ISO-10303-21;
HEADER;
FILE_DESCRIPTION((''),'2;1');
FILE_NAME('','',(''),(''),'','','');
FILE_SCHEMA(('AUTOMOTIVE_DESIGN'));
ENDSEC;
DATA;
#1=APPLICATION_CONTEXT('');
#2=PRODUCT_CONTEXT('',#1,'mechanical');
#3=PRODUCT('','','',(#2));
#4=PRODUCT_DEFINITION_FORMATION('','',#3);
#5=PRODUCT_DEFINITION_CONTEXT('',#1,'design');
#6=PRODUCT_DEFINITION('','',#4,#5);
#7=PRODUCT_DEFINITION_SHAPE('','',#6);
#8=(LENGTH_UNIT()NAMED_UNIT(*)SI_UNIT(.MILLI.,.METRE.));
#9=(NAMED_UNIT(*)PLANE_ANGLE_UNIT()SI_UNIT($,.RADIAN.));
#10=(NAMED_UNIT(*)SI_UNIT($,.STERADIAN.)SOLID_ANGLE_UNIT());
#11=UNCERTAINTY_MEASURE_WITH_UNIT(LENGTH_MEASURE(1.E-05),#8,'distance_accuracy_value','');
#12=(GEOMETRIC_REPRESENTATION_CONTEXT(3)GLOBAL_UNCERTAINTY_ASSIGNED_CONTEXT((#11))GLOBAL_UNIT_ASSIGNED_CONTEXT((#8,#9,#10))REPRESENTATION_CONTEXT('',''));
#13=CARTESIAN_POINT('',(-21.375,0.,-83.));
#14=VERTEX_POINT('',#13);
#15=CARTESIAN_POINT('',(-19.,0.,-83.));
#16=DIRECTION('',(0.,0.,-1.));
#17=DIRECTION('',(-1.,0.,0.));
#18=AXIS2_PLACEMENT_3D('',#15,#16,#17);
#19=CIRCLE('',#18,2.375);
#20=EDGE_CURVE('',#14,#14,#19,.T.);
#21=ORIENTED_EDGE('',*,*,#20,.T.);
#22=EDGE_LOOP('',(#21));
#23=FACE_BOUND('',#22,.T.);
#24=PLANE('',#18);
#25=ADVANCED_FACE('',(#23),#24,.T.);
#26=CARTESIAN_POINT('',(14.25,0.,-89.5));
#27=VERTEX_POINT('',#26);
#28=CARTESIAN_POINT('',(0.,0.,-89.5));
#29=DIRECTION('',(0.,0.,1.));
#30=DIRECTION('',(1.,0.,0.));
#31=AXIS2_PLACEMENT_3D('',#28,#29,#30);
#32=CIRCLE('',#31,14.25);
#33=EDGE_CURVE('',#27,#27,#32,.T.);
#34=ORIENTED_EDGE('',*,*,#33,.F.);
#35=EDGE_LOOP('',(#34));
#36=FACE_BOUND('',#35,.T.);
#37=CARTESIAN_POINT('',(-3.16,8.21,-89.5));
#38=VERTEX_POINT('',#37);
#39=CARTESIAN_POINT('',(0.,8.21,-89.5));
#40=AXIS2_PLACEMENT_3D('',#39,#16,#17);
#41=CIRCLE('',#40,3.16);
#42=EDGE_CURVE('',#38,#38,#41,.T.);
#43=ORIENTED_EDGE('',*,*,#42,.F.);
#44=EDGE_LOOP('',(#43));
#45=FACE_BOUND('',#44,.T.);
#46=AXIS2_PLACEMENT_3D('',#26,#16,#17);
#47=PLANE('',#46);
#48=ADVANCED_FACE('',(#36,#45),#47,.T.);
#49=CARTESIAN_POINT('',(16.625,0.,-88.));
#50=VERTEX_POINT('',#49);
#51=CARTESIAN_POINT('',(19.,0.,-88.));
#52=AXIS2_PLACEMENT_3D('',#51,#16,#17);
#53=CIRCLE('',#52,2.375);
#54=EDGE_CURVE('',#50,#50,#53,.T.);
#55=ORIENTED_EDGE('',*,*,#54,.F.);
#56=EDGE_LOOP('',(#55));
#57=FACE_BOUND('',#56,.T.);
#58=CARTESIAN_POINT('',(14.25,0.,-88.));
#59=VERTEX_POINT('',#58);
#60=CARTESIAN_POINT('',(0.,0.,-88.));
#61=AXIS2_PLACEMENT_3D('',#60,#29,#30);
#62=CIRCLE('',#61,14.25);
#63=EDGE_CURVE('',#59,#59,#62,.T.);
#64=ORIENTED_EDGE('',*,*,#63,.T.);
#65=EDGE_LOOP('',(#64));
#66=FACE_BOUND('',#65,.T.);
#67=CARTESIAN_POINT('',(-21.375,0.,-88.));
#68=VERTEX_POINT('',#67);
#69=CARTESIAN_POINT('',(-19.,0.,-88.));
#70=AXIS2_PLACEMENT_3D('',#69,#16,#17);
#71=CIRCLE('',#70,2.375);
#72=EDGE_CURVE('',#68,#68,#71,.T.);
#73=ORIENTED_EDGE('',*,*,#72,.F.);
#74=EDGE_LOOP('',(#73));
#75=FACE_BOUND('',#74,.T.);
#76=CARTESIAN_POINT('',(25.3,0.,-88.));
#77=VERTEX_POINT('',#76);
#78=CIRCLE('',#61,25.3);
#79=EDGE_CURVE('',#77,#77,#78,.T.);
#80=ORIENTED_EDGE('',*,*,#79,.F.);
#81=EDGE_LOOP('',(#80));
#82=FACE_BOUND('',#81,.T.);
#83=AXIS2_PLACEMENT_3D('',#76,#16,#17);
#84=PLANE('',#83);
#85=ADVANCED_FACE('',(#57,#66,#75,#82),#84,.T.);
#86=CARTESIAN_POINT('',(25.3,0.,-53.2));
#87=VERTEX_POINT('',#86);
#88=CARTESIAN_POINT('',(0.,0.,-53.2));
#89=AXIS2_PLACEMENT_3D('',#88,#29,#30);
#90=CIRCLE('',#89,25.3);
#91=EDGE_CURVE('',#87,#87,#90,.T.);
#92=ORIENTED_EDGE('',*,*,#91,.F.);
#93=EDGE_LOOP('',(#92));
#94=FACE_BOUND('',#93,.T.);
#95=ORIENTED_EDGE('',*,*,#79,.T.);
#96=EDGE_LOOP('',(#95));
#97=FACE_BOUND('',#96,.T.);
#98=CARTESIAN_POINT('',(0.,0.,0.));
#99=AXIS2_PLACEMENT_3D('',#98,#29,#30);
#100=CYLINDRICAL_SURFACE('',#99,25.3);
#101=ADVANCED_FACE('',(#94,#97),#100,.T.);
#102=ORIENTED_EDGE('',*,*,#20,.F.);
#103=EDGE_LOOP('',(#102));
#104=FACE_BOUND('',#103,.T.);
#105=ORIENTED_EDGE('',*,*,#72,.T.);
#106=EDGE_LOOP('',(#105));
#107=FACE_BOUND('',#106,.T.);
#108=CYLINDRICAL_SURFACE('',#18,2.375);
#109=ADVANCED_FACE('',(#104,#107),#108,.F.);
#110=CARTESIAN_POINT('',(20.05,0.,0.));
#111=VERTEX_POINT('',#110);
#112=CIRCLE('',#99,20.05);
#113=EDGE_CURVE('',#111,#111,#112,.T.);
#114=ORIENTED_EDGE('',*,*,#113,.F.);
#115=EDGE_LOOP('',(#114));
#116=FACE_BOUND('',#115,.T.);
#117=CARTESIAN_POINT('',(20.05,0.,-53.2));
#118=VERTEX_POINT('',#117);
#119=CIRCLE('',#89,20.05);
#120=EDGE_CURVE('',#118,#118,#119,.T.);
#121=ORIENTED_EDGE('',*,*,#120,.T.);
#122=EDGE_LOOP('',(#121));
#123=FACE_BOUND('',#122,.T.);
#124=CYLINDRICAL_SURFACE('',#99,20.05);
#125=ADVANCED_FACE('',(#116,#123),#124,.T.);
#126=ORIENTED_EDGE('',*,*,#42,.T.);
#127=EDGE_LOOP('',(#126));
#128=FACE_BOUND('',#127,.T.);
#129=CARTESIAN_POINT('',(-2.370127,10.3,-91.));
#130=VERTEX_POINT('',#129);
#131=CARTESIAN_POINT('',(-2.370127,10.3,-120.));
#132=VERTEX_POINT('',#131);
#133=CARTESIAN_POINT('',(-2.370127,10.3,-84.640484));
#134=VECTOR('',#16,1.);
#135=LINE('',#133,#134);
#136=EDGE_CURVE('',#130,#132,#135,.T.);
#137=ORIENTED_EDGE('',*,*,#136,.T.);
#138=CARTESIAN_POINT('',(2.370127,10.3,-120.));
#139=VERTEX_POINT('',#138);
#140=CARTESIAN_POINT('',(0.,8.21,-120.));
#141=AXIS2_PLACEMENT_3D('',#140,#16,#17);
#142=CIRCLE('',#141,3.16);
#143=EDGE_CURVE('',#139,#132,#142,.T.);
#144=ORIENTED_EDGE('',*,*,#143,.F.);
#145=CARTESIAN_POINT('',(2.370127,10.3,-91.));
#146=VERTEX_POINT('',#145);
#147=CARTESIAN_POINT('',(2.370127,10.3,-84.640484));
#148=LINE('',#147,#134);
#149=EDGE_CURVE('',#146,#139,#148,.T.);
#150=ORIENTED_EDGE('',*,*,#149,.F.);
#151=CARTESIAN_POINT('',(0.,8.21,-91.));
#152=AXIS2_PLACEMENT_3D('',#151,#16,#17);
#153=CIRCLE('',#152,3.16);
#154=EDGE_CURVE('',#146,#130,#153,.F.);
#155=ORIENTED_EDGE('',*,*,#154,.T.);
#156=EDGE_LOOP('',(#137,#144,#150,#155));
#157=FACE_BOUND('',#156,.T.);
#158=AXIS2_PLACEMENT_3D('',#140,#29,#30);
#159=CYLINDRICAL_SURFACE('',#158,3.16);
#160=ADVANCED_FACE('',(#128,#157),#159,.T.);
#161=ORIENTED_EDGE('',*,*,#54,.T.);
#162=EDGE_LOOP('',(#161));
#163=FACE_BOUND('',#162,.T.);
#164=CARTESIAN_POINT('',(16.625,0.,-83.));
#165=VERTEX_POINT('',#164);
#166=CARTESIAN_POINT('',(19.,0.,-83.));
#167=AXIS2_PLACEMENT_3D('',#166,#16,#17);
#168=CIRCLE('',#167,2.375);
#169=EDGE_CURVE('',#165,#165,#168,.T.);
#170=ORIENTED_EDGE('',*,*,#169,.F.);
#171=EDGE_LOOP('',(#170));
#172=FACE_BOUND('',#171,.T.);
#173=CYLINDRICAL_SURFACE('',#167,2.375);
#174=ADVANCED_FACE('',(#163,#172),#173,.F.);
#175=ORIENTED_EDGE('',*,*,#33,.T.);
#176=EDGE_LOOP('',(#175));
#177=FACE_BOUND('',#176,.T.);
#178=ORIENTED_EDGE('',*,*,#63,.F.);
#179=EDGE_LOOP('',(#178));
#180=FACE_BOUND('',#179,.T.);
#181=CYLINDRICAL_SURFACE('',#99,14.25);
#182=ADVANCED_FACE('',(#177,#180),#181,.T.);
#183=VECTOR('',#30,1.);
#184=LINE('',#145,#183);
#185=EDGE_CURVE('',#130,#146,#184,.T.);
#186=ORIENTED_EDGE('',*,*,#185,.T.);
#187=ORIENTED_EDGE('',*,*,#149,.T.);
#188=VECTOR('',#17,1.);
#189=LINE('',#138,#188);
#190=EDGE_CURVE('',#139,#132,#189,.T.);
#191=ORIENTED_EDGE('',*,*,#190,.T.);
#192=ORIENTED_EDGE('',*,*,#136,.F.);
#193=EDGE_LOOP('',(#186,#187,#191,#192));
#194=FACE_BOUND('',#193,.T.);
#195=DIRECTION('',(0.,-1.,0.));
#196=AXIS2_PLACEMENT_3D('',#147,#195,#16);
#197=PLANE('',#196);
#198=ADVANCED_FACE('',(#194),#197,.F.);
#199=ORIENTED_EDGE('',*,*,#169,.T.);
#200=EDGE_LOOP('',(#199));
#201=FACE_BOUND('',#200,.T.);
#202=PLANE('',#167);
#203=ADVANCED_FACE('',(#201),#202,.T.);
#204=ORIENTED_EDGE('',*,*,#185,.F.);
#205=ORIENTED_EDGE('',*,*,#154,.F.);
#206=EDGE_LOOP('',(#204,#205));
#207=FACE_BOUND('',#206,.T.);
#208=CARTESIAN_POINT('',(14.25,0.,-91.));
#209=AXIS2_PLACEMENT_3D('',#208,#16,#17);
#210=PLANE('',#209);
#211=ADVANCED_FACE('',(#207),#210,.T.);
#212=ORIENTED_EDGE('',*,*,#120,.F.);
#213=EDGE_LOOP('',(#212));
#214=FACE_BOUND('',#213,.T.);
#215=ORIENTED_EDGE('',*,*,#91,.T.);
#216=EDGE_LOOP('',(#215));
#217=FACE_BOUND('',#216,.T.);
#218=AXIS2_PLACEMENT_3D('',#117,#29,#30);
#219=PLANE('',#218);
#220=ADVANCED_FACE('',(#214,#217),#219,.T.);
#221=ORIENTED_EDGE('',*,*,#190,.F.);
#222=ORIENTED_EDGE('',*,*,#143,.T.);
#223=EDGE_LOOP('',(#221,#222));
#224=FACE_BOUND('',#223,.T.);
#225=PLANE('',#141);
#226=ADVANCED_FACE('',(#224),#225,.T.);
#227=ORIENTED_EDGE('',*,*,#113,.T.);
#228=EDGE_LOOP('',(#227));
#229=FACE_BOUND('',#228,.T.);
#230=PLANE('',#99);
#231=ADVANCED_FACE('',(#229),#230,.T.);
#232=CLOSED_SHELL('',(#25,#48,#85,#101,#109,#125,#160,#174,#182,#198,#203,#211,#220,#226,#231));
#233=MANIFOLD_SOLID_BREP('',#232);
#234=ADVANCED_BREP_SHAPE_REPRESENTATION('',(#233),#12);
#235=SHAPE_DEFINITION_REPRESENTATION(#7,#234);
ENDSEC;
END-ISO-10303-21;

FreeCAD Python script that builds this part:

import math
import FreeCAD as App
import Part
import Sketcher

V = App.Vector
Q = App.Units.Quantity

doc = App.newDocument("Part")
params = doc.addObject("Spreadsheet::Sheet", "Params")
for row, (alias, value) in enumerate([
    ("sketch1_height", "53.2 mm"),
    ("sketch1_height2", "34.8 mm"),
    ("sketch1_height3", "1.5 mm"),
    ("sketch1_width", "20.05 mm"),
    ("sketch1_width2", "5.25 mm"),
    ("revolution_angle", "360 deg"),
    ("sketch2_diameter", "6.32 mm"),
    ("pad1_length", "30.5 mm"),
    ("sketch3_radius", "3.16 mm"),
    ("pocket1_length", "29 mm"),
    ("sketch4_diameter", "4.75 mm"),
    ("pocket2_length", "5 mm"),
], start=1):
    params.set(f"A{row}", alias)
    params.set(f"B{row}", "=" + value)
    params.setAlias(f"B{row}", alias)

body = doc.addObject("PartDesign::Body", "Body")

# Sketch on XZ plane
sketch1 = body.newObject("Sketcher::SketchObject", "Sketch")
sketch1.AttachmentSupport = (doc.getObject("XZ_Plane"), [""])
sketch1.MapMode = "FlatFace"
sketch1.addGeometry(Part.LineSegment(V(0, 0, 0), V(20.1, 0, 0)), False)
sketch1.addGeometry(Part.LineSegment(V(20.1, 0, 0), V(20.1, -53.2, 0)), False)
sketch1.addGeometry(Part.LineSegment(V(20.1, -53.2, 0), V(25.3, -53.2, 0)), False)
sketch1.addGeometry(Part.LineSegment(V(25.3, -53.2, 0), V(25.3, -88, 0)), False)
sketch1.addGeometry(Part.LineSegment(V(25.3, -88, 0), V(14.2, -88, 0)), False)
sketch1.addGeometry(Part.LineSegment(V(14.2, -88, 0), V(14.2, -89.5, 0)), False)
sketch1.addGeometry(Part.LineSegment(V(14.2, -89.5, 0), V(0, -89.5, 0)), False)
sketch1.addGeometry(Part.LineSegment(V(0, -89.5, 0), V(0, 0, 0)), False)
sketch1.addConstraint(Sketcher.Constraint("Coincident", 0, 2, 1, 1))
sketch1.addConstraint(Sketcher.Constraint("Coincident", 1, 2, 2, 1))
sketch1.addConstraint(Sketcher.Constraint("Coincident", 2, 2, 3, 1))
sketch1.addConstraint(Sketcher.Constraint("Coincident", 3, 2, 4, 1))
sketch1.addConstraint(Sketcher.Constraint("Coincident", 4, 2, 5, 1))
sketch1.addConstraint(Sketcher.Constraint("Coincident", 5, 2, 6, 1))
sketch1.addConstraint(Sketcher.Constraint("Coincident", 6, 2, 7, 1))
sketch1.addConstraint(Sketcher.Constraint("Coincident", 7, 2, 0, 1))
sketch1.addConstraint(Sketcher.Constraint("Horizontal", 0))
sketch1.addConstraint(Sketcher.Constraint("Vertical", 1))
sketch1.addConstraint(Sketcher.Constraint("Horizontal", 2))
sketch1.addConstraint(Sketcher.Constraint("Vertical", 3))
sketch1.addConstraint(Sketcher.Constraint("Horizontal", 4))
sketch1.addConstraint(Sketcher.Constraint("Vertical", 5))
sketch1.addConstraint(Sketcher.Constraint("Horizontal", 6))
sketch1.addConstraint(Sketcher.Constraint("Vertical", 7))
sketch1.addConstraint(Sketcher.Constraint("Coincident", 7, 2, -1, 1))
sketch1.addConstraint(Sketcher.Constraint("DistanceY", 1, 2, 1, 1, Q("53.2 mm")))
sketch1.addConstraint(Sketcher.Constraint("DistanceY", 3, 2, 3, 1, Q("34.8 mm")))
sketch1.addConstraint(Sketcher.Constraint("DistanceY", 5, 2, 5, 1, Q("1.5 mm")))
sketch1.addConstraint(Sketcher.Constraint("DistanceX", 0, 1, 0, 2, Q("20.05 mm")))
sketch1.addConstraint(Sketcher.Constraint("DistanceX", 2, 1, 2, 2, Q("5.25 mm")))
sketch1.addConstraint(Sketcher.Constraint("DistanceX", 4, 2, 4, 1, Q("11.05 mm")))
sketch1.setExpression("Constraints[17]", "Params.sketch1_height")
sketch1.setExpression("Constraints[18]", "Params.sketch1_height2")
sketch1.setExpression("Constraints[19]", "Params.sketch1_height3")
sketch1.setExpression("Constraints[20]", "Params.sketch1_width")
sketch1.setExpression("Constraints[21]", "Params.sketch1_width2")
revolution = body.newObject("PartDesign::Revolution", "Revolution")
revolution.Profile = sketch1
revolution.ReferenceAxis = (sketch1, ["V_Axis"])
revolution.setExpression("Angle", "Params.revolution_angle")

# Sketch on XY plane
sketch2 = body.newObject("Sketcher::SketchObject", "Sketch001")
sketch2.AttachmentSupport = (doc.getObject("XY_Plane"), [""])
sketch2.MapMode = "FlatFace"
sketch2.AttachmentOffset = App.Placement(V(0, 0, -89.5), App.Rotation())
sketch2.addGeometry(Part.Circle(V(0, 8.2, 0), V(0, 0, 1), 3.2), False)
sketch2.addConstraint(Sketcher.Constraint("PointOnObject", 0, 3, -2))
sketch2.addConstraint(Sketcher.Constraint("Diameter", 0, Q("6.32 mm")))
sketch2.addConstraint(Sketcher.Constraint("DistanceY", -1, 1, 0, 3, Q("8.21 mm")))
sketch2.setExpression("Constraints[1]", "Params.sketch2_diameter")
pad1 = body.newObject("PartDesign::Pad", "Pad")
pad1.Profile = sketch2
pad1.setExpression("Length", "Params.pad1_length")
pad1.Reversed = True

# Sketch on XY plane
sketch3 = body.newObject("Sketcher::SketchObject", "Sketch002")
sketch3.AttachmentSupport = (doc.getObject("XY_Plane"), [""])
sketch3.MapMode = "FlatFace"
sketch3.AttachmentOffset = App.Placement(V(0, 0, -91), App.Rotation())
sketch3.addGeometry(Part.LineSegment(V(2.4, 10.3, 0), V(-2.4, 10.3, 0)), False)
sketch3.addGeometry(Part.ArcOfCircle(Part.Circle(V(0, 8.2, 0), V(0, 0, 1), 3.2), math.radians(41), math.radians(139)), False)
sketch3.addConstraint(Sketcher.Constraint("Coincident", 0, 1, 1, 1))
sketch3.addConstraint(Sketcher.Constraint("Coincident", 1, 2, 0, 2))
sketch3.addConstraint(Sketcher.Constraint("Horizontal", 0))
sketch3.addConstraint(Sketcher.Constraint("PointOnObject", 1, 3, -2))
sketch3.addConstraint(Sketcher.Constraint("Radius", 1, Q("3.16 mm")))
sketch3.addConstraint(Sketcher.Constraint("DistanceY", -1, 1, 0, 1, Q("10.3 mm")))
sketch3.addConstraint(Sketcher.Constraint("DistanceY", -1, 1, 1, 3, Q("8.21 mm")))
sketch3.setExpression("Constraints[4]", "Params.sketch3_radius")
pocket1 = body.newObject("PartDesign::Pocket", "Pocket")
pocket1.Profile = sketch3
pocket1.setExpression("Length", "Params.pocket1_length")

# Sketch on XY plane
sketch4 = body.newObject("Sketcher::SketchObject", "Sketch003")
sketch4.AttachmentSupport = (doc.getObject("XY_Plane"), [""])
sketch4.MapMode = "FlatFace"
sketch4.AttachmentOffset = App.Placement(V(0, 0, -88), App.Rotation())
sketch4.addGeometry(Part.Circle(V(19, 0, 0), V(0, 0, 1), 2.4), False)
sketch4.addGeometry(Part.Circle(V(-19, 0, 0), V(0, 0, 1), 2.4), False)
sketch4.addConstraint(Sketcher.Constraint("Equal", 0, 1))
sketch4.addConstraint(Sketcher.Constraint("Symmetric", 0, 3, 1, 3, -1, 1))
sketch4.addConstraint(Sketcher.Constraint("PointOnObject", 0, 3, -1))
sketch4.addConstraint(Sketcher.Constraint("Diameter", 0, Q("4.75 mm")))
sketch4.addConstraint(Sketcher.Constraint("DistanceX", -1, 1, 0, 3, Q("19 mm")))
sketch4.setExpression("Constraints[3]", "Params.sketch4_diameter")
pocket2 = body.newObject("PartDesign::Pocket", "Pocket001")
pocket2.Profile = sketch4
pocket2.setExpression("Length", "Params.pocket2_length")
pocket2.Reversed = True

doc.recompute()
